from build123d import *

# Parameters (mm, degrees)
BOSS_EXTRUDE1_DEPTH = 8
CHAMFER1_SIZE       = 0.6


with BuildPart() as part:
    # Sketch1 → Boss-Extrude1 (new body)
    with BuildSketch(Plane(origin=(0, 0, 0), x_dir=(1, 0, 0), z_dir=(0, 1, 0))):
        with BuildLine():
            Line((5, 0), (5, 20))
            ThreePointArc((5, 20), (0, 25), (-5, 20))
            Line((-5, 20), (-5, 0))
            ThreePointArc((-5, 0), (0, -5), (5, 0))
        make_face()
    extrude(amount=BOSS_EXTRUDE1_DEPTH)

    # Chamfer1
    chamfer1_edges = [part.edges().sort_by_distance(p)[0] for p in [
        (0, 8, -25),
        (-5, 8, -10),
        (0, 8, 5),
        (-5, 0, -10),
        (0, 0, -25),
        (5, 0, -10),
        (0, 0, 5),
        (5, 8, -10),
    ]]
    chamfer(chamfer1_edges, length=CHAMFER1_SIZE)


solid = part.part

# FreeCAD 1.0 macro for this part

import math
import FreeCAD as App
import Part
import Sketcher
Q = App.Units.Quantity


def edges_at(feature, points):
    """Names of the edges that pass closest to the given points."""
    edges = feature.Shape.Edges
    near = lambda p: min(range(len(edges)), key=lambda i: edges[i].distToShape(Part.Vertex(*p))[0])
    return sorted({f"Edge{near(p) + 1}" for p in points})

doc = App.newDocument("Part")
params = doc.addObject("Spreadsheet::Sheet", "Params")
for row, (alias, value) in enumerate([
    ("sketch1_radius", "5 mm"),
    ("sketch1_height", "20 mm"),
    ("pad1_length", "8 mm"),
    ("chamfer_size", "0.6 mm"),
], start=1):
    params.set(f"A{row}", alias)
    params.set(f"B{row}", "=" + value)
    params.setAlias(f"B{row}", alias)

body = doc.addObject("PartDesign::Body", "Body")

# Sketch on XZ plane
sketch1 = body.newObject("Sketcher::SketchObject", "Sketch")
sketch1.AttachmentSupport = (doc.getObject("XZ_Plane"), [""])
sketch1.MapMode = "FlatFace"
sketch1.addGeometry([
    Part.LineSegment(App.Vector(5, 0, 0), App.Vector(5, -20, 0)),
    Part.ArcOfCircle(Part.Circle(App.Vector(0, -20, 0), App.Vector(0, 0, 1), 5), math.radians(180), math.radians(360)),
    Part.LineSegment(App.Vector(-5, -20, 0), App.Vector(-5, 0, 0)),
    Part.ArcOfCircle(Part.Circle(App.Vector(0, 0, 0), App.Vector(0, 0, 1), 5), math.radians(0), math.radians(180)),
], False)
sketch1.addConstraint([
    Sketcher.Constraint("Tangent", 0, 2, 1, 2),
    Sketcher.Constraint("Tangent", 1, 1, 2, 1),
    Sketcher.Constraint("Tangent", 2, 2, 3, 2),
    Sketcher.Constraint("Tangent", 3, 1, 0, 1),
    Sketcher.Constraint("Vertical", 0),
    Sketcher.Constraint("Vertical", 2),
    Sketcher.Constraint("Coincident", 3, 3, -1, 1),
    Sketcher.Constraint("Radius", 1, Q("5 mm")),
    Sketcher.Constraint("DistanceY", 0, 2, 0, 1, Q("20 mm")),
])
sketch1.setExpression("Constraints[7]", "Params.sketch1_radius")
sketch1.setExpression("Constraints[8]", "Params.sketch1_height")
pad1 = body.newObject("PartDesign::Pad", "Pad")
pad1.Profile = sketch1
pad1.setExpression("Length", "Params.pad1_length")
pad1.Reversed = True
doc.recompute()

chamfer = body.newObject("PartDesign::Chamfer", "Chamfer")
chamfer.Base = (pad1, edges_at(pad1, [
    (0, 8, -25),
    (-5, 8, -10),
    (0, 8, 5),
    (-5, 0, -10),
    (0, 0, -25),
    (5, 0, -10),
    (0, 0, 5),
    (5, 8, -10),
]))
chamfer.setExpression("Size", "Params.chamfer_size")

doc.recompute()
